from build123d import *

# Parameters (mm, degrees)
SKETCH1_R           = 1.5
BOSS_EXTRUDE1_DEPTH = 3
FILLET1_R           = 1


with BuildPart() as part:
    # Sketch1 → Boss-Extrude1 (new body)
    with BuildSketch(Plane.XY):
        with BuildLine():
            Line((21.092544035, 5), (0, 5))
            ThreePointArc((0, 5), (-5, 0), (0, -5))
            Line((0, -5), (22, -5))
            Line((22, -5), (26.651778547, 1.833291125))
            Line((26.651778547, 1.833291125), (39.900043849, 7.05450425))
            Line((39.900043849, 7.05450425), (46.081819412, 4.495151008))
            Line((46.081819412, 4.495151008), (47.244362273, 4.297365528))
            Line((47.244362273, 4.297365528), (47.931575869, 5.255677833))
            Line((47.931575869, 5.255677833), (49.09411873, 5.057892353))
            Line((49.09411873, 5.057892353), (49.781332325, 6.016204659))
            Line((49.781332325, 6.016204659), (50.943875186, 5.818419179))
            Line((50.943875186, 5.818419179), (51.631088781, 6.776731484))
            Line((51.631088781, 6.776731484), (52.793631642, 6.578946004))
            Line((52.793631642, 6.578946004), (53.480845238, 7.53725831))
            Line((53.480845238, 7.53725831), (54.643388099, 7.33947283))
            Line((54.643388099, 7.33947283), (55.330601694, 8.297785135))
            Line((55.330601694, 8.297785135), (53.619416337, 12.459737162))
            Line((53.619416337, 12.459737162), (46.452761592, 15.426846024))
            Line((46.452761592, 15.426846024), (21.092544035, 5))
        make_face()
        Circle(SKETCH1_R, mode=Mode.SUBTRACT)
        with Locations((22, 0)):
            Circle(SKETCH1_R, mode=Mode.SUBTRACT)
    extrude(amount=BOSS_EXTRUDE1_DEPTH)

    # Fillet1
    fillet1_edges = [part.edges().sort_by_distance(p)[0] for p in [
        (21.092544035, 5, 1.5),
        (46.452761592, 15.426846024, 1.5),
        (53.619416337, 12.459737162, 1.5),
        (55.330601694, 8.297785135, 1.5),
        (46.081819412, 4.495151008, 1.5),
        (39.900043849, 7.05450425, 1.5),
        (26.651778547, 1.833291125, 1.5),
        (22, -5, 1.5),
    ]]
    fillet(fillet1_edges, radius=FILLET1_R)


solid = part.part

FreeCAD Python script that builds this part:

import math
import FreeCAD as App
import Part
import Sketcher

V = App.Vector
Q = App.Units.Quantity


def edges_at(feature, points):
    """Names of the edges that pass closest to the given points."""
    edges = feature.Shape.Edges
    near = lambda p: min(range(len(edges)), key=lambda i: edges[i].distToShape(Part.Vertex(*p))[0])
    return sorted({f"Edge{near(p) + 1}" for p in points})

doc = App.newDocument("Part")
body = doc.addObject("PartDesign::Body", "Body")

sketch1 = doc.addObject("Sketcher::SketchObject", "Sketch")
body.addObject(sketch1)
sketch1.AttachmentSupport = (doc.XY_Plane, [""])
sketch1.MapMode = "FlatFace"
sketch1.addGeometry([
    Part.LineSegment(V(21.1, 5, 0), V(0, 5, 0)),
    Part.ArcOfCircle(Part.Circle(V(0, 0, 0), V(0, 0, 1), 5), math.radians(90), math.radians(270)),
    Part.LineSegment(V(0, -5, 0), V(22, -5, 0)),
    Part.LineSegment(V(22, -5, 0), V(26.7, 1.8, 0)),
    Part.LineSegment(V(26.7, 1.8, 0), V(39.9, 7.1, 0)),
    Part.LineSegment(V(39.9, 7.1, 0), V(46.1, 4.5, 0)),
    Part.LineSegment(V(46.1, 4.5, 0), V(47.2, 4.3, 0)),
    Part.LineSegment(V(47.2, 4.3, 0), V(47.9, 5.3, 0)),
    Part.LineSegment(V(47.9, 5.3, 0), V(49.1, 5.1, 0)),
    Part.LineSegment(V(49.1, 5.1, 0), V(49.8, 6, 0)),
    Part.LineSegment(V(49.8, 6, 0), V(50.9, 5.8, 0)),
    Part.LineSegment(V(50.9, 5.8, 0), V(51.6, 6.8, 0)),
    Part.LineSegment(V(51.6, 6.8, 0), V(52.8, 6.6, 0)),
    Part.LineSegment(V(52.8, 6.6, 0), V(53.5, 7.5, 0)),
    Part.LineSegment(V(53.5, 7.5, 0), V(54.6, 7.3, 0)),
    Part.LineSegment(V(54.6, 7.3, 0), V(55.3, 8.3, 0)),
    Part.LineSegment(V(55.3, 8.3, 0), V(53.6, 12.5, 0)),
    Part.LineSegment(V(53.6, 12.5, 0), V(46.5, 15.4, 0)),
    Part.LineSegment(V(46.5, 15.4, 0), V(21.1, 5, 0)),
    Part.Circle(V(0, 0, 0), V(0, 0, 1), 1.5),
    Part.Circle(V(22, 0, 0), V(0, 0, 1), 1.5),
], False)
sketch1.addConstraint([
    Sketcher.Constraint("Tangent", 0, 2, 1, 1),
    Sketcher.Constraint("Tangent", 1, 2, 2, 1),
    Sketcher.Constraint("Coincident", 2, 2, 3, 1),
    Sketcher.Constraint("Coincident", 3, 2, 4, 1),
    Sketcher.Constraint("Coincident", 4, 2, 5, 1),
    Sketcher.Constraint("Coincident", 5, 2, 6, 1),
    Sketcher.Constraint("Coincident", 6, 2, 7, 1),
    Sketcher.Constraint("Coincident", 7, 2, 8, 1),
    Sketcher.Constraint("Coincident", 8, 2, 9, 1),
    Sketcher.Constraint("Coincident", 9, 2, 10, 1),
    Sketcher.Constraint("Coincident", 10, 2, 11, 1),
    Sketcher.Constraint("Coincident", 11, 2, 12, 1),
    Sketcher.Constraint("Coincident", 12, 2, 13, 1),
    Sketcher.Constraint("Coincident", 13, 2, 14, 1),
    Sketcher.Constraint("Coincident", 14, 2, 15, 1),
    Sketcher.Constraint("Coincident", 15, 2, 16, 1),
    Sketcher.Constraint("Coincident", 16, 2, 17, 1),
    Sketcher.Constraint("Coincident", 17, 2, 18, 1),
    Sketcher.Constraint("Coincident", 18, 2, 0, 1),
    Sketcher.Constraint("Horizontal", 0),
    Sketcher.Constraint("Horizontal", 2),
    Sketcher.Constraint("Coincident", 1, 3, -1, 1),
    Sketcher.Constraint("Coincident", 19, 3, -1, 1),
    Sketcher.Constraint("Equal", 19, 20),
    Sketcher.Constraint("PointOnObject", 20, 3, -1),
    Sketcher.Constraint("Parallel", 6, 8),
    Sketcher.Constraint("Parallel", 7, 9),
    Sketcher.Constraint("Parallel", 8, 10),
    Sketcher.Constraint("Parallel", 9, 11),
    Sketcher.Constraint("Parallel", 10, 12),
    Sketcher.Constraint("Parallel", 11, 13),
    Sketcher.Constraint("Parallel", 12, 14),
    Sketcher.Constraint("Parallel", 13, 15),
    Sketcher.Constraint("Parallel", 5, 17),
    Sketcher.Constraint("Perpendicular", 16, 18),
    Sketcher.Constraint("Vertical", 20, 3, 2, 2),
    Sketcher.Constraint("Equal", 6, 7),
    Sketcher.Constraint("Equal", 7, 8),
    Sketcher.Constraint("Equal", 8, 9),
    Sketcher.Constraint("Equal", 9, 10),
    Sketcher.Constraint("Equal", 10, 11),
    Sketcher.Constraint("Equal", 11, 12),
    Sketcher.Constraint("Equal", 12, 13),
    Sketcher.Constraint("Equal", 13, 14),
    Sketcher.Constraint("Equal", 14, 15),
    Sketcher.Constraint("Diameter", 19, Q("3 mm")),
    Sketcher.Constraint("Radius", 1, Q("5 mm")),
    Sketcher.Constraint("DistanceX", 2, 1, 2, 2, Q("22 mm")),
    Sketcher.Constraint("Distance", 16, Q("4.5 mm")),
    Sketcher.Constraint("Angle", 16, Q("112.35 deg")),
    Sketcher.Constraint("Distance", 4, Q("14.24 mm")),
    Sketcher.Constraint("DistanceX", -1, 1, 15, 2, Q("55.330602 mm")),
    Sketcher.Constraint("DistanceX", 5, 2, 8, 2, Q("3.012299 mm")),
    Sketcher.Constraint("DistanceY", 3, 2, 8, 2, Q("3.224601 mm")),
    Sketcher.Constraint("DistanceY", 9, 2, 4, 2, Q("1.0383 mm")),
    Sketcher.Constraint("DistanceX", 18, 2, 4, 2, Q("18.8075 mm")),
    Sketcher.Constraint("Distance", 5, Q("6.690638 mm")),
    Sketcher.Constraint("Distance", 17, Q("7.756589 mm")),
    Sketcher.Constraint("Distance", 18, Q("27.420061 mm")),
    Sketcher.Constraint("DistanceX", 0, 2, 0, 1, Q("21.092544 mm")),
])
pad1 = doc.addObject("PartDesign::Pad", "Pad")
body.addObject(pad1)
pad1.Profile = sketch1
pad1.Length = 3
doc.recompute()

fillet = doc.addObject("PartDesign::Fillet", "Fillet")
body.addObject(fillet)
fillet.Base = (pad1, edges_at(pad1, [
    (21.093, 5, 1.5),
    (46.453, 15.427, 1.5),
    (53.619, 12.46, 1.5),
    (55.331, 8.298, 1.5),
    (46.082, 4.495, 1.5),
    (39.9, 7.055, 1.5),
    (26.652, 1.833, 1.5),
    (22, -5, 1.5),
]))
fillet.Radius = 1

doc.recompute()
